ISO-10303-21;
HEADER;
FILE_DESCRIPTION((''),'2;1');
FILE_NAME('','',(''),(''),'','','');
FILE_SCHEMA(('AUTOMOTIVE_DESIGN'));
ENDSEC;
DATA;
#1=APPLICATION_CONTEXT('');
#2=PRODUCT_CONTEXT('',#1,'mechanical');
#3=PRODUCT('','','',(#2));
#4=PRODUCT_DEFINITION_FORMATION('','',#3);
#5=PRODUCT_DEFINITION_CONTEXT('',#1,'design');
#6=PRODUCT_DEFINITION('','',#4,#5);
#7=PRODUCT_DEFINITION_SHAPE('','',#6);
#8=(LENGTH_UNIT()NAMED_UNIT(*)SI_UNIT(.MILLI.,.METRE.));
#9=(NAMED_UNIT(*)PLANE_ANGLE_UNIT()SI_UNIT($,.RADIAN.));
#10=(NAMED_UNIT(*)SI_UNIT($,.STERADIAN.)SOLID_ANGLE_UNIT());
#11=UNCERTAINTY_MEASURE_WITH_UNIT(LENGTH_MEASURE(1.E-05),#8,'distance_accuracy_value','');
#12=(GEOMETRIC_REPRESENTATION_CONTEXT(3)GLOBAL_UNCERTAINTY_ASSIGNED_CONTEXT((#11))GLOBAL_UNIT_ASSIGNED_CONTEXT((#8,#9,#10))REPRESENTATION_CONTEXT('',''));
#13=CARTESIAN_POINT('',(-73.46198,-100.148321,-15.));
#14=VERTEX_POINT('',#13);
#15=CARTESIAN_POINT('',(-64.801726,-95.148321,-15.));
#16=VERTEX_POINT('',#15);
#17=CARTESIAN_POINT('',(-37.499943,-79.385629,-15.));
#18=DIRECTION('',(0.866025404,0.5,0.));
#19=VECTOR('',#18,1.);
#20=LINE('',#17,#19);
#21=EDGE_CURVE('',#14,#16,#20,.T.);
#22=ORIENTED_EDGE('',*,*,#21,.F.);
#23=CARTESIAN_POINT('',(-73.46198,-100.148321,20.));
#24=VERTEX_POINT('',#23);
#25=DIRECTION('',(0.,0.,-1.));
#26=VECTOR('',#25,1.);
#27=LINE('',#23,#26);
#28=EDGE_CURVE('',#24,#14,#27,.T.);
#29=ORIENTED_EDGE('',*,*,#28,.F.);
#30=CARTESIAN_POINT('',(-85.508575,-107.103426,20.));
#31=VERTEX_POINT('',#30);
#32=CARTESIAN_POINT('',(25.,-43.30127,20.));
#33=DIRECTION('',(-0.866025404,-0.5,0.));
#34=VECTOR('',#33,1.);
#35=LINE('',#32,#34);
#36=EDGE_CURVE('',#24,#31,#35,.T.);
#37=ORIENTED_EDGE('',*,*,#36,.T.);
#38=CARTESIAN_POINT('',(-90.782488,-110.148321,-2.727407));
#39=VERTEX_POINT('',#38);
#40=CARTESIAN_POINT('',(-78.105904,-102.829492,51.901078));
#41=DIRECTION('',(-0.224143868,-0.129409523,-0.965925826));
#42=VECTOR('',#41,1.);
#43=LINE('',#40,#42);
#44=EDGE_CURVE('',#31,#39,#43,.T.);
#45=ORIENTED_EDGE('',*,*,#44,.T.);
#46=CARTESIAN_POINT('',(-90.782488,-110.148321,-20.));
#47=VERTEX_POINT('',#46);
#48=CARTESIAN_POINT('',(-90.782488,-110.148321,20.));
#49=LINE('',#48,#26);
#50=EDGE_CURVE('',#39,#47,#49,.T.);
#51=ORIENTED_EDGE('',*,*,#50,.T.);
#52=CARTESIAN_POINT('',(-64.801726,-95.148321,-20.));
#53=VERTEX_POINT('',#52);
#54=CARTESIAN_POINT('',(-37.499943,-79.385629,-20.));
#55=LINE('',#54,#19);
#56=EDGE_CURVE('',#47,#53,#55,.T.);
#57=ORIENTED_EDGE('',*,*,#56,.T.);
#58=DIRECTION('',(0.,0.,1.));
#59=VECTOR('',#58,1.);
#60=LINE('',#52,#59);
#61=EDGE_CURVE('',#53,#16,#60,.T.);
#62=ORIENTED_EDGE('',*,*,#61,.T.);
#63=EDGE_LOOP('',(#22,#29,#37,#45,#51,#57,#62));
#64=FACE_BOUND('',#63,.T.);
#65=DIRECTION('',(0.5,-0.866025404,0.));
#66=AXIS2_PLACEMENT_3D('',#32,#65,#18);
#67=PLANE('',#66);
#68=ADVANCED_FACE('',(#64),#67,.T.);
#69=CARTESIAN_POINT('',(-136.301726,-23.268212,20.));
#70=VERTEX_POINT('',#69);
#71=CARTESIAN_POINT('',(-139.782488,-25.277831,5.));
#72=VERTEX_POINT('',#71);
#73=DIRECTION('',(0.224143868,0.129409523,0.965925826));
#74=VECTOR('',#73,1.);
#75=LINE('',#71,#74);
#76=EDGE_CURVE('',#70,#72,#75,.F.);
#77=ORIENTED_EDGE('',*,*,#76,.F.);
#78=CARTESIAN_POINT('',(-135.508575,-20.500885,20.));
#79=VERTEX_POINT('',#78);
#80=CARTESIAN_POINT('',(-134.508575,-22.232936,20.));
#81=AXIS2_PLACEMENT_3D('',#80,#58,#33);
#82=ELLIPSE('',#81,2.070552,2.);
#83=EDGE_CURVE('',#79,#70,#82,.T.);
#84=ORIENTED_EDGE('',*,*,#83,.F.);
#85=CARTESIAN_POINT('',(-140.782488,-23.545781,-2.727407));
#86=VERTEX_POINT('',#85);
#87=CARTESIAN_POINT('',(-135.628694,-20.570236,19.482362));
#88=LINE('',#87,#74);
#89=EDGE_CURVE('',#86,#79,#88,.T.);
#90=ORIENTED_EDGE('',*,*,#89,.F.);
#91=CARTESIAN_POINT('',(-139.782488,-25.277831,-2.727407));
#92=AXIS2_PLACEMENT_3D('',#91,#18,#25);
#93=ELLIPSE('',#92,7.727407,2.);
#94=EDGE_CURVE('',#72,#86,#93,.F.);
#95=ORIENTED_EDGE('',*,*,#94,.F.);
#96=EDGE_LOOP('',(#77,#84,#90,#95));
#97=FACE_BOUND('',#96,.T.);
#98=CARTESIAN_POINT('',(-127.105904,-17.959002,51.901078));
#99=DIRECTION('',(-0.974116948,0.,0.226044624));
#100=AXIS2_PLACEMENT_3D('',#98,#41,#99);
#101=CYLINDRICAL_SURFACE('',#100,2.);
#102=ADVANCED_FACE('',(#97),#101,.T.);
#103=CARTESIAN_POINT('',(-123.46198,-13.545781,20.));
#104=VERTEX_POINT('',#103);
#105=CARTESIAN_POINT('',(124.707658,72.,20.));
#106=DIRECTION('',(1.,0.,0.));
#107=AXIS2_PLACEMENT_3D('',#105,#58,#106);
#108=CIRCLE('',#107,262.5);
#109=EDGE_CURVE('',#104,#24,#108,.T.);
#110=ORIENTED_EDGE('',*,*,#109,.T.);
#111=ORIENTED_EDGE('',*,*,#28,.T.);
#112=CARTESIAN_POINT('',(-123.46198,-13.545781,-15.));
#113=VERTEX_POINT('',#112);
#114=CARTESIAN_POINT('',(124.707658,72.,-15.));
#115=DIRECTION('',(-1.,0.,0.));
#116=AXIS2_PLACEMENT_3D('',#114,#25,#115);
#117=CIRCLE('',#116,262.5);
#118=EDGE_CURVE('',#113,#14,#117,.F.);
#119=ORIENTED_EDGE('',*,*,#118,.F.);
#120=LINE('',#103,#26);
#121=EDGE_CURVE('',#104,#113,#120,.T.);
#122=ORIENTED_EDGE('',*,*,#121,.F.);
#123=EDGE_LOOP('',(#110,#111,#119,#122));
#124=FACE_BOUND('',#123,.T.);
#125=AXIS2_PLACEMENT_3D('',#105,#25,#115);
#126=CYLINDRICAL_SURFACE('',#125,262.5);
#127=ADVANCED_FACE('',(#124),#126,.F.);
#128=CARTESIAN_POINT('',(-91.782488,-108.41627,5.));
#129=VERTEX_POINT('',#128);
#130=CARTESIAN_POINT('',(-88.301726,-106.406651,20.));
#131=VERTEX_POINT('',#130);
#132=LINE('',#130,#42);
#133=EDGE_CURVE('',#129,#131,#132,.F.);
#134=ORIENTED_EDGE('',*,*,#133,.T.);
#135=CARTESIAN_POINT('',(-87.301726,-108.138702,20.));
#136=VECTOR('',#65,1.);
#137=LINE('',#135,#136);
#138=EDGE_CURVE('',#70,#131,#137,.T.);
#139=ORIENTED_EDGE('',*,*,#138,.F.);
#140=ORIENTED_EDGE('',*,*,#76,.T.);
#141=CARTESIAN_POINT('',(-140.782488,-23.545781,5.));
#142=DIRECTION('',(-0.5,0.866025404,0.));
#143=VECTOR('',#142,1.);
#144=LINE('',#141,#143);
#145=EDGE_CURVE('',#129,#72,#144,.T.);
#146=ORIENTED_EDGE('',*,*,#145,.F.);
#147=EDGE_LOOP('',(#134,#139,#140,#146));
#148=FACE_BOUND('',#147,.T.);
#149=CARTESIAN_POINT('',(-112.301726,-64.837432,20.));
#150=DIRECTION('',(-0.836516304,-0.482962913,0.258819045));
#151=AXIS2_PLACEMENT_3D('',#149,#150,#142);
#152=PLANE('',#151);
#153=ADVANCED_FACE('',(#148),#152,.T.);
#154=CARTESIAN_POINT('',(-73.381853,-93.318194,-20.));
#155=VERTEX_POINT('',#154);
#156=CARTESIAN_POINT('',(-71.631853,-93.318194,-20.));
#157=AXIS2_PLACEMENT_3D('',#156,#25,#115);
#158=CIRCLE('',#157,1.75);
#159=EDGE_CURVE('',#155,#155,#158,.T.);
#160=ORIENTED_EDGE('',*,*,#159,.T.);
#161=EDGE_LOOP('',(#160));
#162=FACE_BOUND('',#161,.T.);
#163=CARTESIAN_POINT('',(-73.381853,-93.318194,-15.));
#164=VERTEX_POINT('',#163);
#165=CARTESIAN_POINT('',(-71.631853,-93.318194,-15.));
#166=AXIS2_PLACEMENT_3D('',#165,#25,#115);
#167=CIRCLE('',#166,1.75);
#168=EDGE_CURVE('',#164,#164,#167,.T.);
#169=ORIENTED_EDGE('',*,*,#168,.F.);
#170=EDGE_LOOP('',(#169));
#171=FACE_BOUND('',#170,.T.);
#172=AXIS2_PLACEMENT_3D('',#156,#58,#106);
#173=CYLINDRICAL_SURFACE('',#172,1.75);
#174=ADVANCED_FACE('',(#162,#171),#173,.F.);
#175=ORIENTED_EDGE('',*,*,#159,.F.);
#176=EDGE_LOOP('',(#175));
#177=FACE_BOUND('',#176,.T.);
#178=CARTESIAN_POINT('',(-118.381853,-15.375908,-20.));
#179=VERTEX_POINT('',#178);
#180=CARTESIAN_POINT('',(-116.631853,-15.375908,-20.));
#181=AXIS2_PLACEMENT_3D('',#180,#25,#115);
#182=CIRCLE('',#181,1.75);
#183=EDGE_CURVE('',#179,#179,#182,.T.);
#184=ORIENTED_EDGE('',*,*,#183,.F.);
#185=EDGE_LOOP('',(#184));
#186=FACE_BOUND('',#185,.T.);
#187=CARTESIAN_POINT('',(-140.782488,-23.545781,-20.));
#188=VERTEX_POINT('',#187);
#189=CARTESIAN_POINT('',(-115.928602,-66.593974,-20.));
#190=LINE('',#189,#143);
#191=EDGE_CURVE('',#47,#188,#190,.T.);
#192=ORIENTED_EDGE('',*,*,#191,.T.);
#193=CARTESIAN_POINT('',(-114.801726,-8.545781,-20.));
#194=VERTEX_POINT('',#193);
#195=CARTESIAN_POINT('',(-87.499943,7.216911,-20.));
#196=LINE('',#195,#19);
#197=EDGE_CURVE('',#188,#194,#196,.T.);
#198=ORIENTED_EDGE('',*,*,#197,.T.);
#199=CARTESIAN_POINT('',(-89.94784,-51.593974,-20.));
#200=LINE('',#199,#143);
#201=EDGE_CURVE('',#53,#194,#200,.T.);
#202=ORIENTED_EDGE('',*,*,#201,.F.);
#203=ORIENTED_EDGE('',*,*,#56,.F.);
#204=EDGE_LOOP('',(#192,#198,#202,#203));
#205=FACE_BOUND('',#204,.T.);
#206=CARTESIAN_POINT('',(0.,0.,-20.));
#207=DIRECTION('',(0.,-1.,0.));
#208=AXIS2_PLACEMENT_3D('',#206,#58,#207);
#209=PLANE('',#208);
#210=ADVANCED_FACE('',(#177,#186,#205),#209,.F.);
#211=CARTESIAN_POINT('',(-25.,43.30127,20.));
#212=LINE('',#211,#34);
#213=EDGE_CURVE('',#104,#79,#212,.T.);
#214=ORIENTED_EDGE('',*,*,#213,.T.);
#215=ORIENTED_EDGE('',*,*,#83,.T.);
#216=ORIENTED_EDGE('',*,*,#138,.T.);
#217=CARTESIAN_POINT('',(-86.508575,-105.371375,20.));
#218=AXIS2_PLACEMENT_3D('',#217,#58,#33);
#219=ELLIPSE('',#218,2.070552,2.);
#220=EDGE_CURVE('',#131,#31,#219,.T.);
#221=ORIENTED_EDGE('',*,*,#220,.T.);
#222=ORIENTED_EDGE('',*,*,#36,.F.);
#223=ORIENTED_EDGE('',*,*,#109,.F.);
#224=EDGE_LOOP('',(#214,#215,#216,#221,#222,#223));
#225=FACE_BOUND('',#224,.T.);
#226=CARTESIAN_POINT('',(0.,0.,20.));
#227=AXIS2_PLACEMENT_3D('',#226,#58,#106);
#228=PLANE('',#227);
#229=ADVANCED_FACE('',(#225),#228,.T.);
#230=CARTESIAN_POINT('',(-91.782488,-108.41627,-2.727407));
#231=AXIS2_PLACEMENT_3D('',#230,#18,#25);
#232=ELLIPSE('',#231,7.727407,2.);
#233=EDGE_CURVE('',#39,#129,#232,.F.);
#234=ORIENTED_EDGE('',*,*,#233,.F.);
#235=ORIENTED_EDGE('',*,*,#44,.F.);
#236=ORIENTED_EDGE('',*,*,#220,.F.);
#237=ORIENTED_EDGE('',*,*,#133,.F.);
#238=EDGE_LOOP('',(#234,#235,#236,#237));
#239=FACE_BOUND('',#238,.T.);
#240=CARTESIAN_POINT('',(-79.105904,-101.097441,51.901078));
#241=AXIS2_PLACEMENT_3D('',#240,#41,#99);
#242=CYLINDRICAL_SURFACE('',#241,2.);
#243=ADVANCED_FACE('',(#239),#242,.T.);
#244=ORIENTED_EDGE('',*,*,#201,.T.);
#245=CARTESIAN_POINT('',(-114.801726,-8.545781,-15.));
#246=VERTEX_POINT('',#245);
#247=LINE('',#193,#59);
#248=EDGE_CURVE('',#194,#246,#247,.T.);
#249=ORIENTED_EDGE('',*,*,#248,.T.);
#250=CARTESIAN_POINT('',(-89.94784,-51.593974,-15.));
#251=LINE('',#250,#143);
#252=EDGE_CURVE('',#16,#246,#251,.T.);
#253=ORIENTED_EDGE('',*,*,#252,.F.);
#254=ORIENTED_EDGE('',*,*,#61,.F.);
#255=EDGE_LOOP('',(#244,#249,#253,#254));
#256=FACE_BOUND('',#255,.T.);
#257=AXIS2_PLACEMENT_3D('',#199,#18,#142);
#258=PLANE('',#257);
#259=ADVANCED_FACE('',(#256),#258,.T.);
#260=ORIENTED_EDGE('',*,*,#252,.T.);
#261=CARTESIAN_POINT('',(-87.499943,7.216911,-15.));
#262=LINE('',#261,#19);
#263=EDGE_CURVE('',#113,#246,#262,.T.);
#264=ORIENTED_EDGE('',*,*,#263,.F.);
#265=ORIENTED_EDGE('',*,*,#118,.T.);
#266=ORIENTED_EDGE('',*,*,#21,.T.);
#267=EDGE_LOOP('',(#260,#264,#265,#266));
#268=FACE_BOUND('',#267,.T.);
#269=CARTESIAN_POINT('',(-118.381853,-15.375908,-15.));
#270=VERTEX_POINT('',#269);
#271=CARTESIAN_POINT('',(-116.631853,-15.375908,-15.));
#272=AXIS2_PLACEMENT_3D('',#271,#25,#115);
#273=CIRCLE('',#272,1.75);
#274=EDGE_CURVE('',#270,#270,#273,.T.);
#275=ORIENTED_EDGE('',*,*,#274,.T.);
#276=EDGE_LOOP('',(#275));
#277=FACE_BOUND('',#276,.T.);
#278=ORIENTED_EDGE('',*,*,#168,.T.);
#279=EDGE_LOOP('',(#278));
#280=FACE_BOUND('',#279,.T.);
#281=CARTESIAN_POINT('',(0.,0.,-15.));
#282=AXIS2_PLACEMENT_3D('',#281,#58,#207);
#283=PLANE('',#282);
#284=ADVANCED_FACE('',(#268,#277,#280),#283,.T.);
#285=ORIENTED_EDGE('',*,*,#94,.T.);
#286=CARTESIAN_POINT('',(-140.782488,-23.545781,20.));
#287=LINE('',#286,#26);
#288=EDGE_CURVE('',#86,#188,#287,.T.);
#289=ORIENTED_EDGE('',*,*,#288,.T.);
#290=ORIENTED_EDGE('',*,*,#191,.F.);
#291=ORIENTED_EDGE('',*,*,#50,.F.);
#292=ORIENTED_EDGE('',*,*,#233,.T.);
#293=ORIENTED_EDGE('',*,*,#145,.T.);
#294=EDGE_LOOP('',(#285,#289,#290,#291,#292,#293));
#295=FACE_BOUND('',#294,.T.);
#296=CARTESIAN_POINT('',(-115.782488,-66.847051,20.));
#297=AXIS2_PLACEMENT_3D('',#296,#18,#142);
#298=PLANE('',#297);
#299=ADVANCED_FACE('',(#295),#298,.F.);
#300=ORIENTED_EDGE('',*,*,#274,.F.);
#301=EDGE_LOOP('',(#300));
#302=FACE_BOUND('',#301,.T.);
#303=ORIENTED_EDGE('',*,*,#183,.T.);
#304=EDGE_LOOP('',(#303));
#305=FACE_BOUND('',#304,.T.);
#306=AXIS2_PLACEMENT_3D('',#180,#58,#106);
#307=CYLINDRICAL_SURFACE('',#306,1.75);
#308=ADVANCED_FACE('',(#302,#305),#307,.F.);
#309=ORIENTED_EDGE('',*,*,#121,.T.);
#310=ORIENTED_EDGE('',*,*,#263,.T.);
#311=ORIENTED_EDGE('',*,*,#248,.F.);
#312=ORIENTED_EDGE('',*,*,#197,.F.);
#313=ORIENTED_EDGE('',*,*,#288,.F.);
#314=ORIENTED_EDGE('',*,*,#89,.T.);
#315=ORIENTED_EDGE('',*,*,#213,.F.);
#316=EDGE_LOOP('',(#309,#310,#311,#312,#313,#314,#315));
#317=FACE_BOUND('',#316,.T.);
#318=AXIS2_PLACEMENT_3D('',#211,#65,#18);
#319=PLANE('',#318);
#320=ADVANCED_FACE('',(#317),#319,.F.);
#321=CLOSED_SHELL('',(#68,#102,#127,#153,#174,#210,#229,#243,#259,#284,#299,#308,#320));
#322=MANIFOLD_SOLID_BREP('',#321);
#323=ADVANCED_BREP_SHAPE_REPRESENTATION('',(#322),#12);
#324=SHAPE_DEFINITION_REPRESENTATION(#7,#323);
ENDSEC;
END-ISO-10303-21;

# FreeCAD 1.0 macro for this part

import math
import FreeCAD as App
import Part
import Sketcher
from FreeCAD import Vector
Q = App.Units.Quantity


def edges_at(feature, points):
    """Names of the edges that pass closest to the given points."""
    edges = feature.Shape.Edges
    near = lambda p: min(range(len(edges)), key=lambda i: edges[i].distToShape(Part.Vertex(*p))[0])
    return sorted({f"Edge{near(p) + 1}" for p in points})

doc = App.newDocument("Part")
params = doc.addObject("Spreadsheet::Sheet", "Params")
for row, (alias, value) in enumerate([
    ("sketch1_radius", "262.5 mm"),
    ("sketch1_length", "20 mm"),
    ("sketch1_length2", "100 mm"),
    ("pad1_length", "20 mm"),
    ("pad1_length2", "15 mm"),
    ("sketch2_diameter", "3.5 mm"),
    ("sketch2_length", "100 mm"),
    ("sketch2_length2", "30 mm"),
    ("pad2_length", "5 mm"),
    ("chamfer_size", "15 mm"),
    ("chamfer_size2", "4.019238 mm"),
    ("fillet_radius", "2 mm"),
], start=1):
    params.set(f"A{row}", alias)
    params.set(f"B{row}", "=" + value)
    params.setAlias(f"B{row}", alias)

body = doc.addObject("PartDesign::Body", "Body")

# Sketch on XY plane
sketch1 = body.newObject("Sketcher::SketchObject", "Sketch")
sketch1.AttachmentSupport = (doc.getObject("XY_Plane"), [""])
sketch1.MapMode = "FlatFace"
sketch1.addGeometry(Part.ArcOfCircle(Part.Circle(Vector(124.707658, 72, 0), Vector(0, 0, 1), 262.5), math.radians(-160.980575), math.radians(-139.019425)), False)
sketch1.addGeometry(Part.LineSegment(Vector(-123.46198, -13.545781, 0), Vector(-140.782488, -23.545781, 0)), False)
sketch1.addGeometry(Part.LineSegment(Vector(-140.782488, -23.545781, 0), Vector(-90.782488, -110.148321, 0)), False)
sketch1.addGeometry(Part.LineSegment(Vector(-90.782488, -110.148321, 0), Vector(-73.46198, -100.148321, 0)), False)
sketch1.addConstraint(Sketcher.Constraint("Coincident", 0, 1, 1, 1))
sketch1.addConstraint(Sketcher.Constraint("Coincident", 1, 2, 2, 1))
sketch1.addConstraint(Sketcher.Constraint("Coincident", 2, 2, 3, 1))
sketch1.addConstraint(Sketcher.Constraint("Coincident", 3, 2, 0, 2))
sketch1.addConstraint(Sketcher.Constraint("Perpendicular", 1, 2))
sketch1.addConstraint(Sketcher.Constraint("Perpendicular", 2, 3))
sketch1.addConstraint(Sketcher.Constraint("Equal", 1, 3))
sketch1.addConstraint(Sketcher.Constraint("Radius", 0, Q("262.5 mm")))
sketch1.addConstraint(Sketcher.Constraint("Angle", 1, Q("-150 deg")))
sketch1.addConstraint(Sketcher.Constraint("Distance", 1, Q("20 mm")))
sketch1.addConstraint(Sketcher.Constraint("Distance", 2, Q("100 mm")))
sketch1.addConstraint(Sketcher.Constraint("DistanceY", -1, 1, 0, 3, Q("72 mm")))
sketch1.addConstraint(Sketcher.Constraint("DistanceX", -1, 1, 0, 3, Q("124.707658 mm")))
sketch1.setExpression("Constraints[7]", "Params.sketch1_radius")
sketch1.setExpression("Constraints[9]", "Params.sketch1_length")
sketch1.setExpression("Constraints[10]", "Params.sketch1_length2")
pad1 = body.newObject("PartDesign::Pad", "Pad")
pad1.Profile = sketch1
pad1.Type = "TwoLengths"
pad1.setExpression("Length", "Params.pad1_length")
pad1.setExpression("Length2", "Params.pad1_length2")

# Sketch on XY plane
sketch2 = body.newObject("Sketcher::SketchObject", "Sketch001")
sketch2.AttachmentSupport = (doc.getObject("XY_Plane"), [""])
sketch2.MapMode = "FlatFace"
sketch2.AttachmentOffset = App.Placement(Vector(0, 0, -20), App.Rotation())
sketch2.addGeometry(Part.LineSegment(Vector(-140.782488, -23.545781, 0), Vector(-90.782488, -110.148321, 0)), False)
sketch2.addGeometry(Part.LineSegment(Vector(-90.782488, -110.148321, 0), Vector(-64.801726, -95.148321, 0)), False)
sketch2.addGeometry(Part.LineSegment(Vector(-64.801726, -95.148321, 0), Vector(-114.801726, -8.545781, 0)), False)
sketch2.addGeometry(Part.LineSegment(Vector(-114.801726, -8.545781, 0), Vector(-140.782488, -23.545781, 0)), False)
sketch2.addGeometry(Part.Circle(Vector(-116.631853, -15.375908, 0), Vector(0, 0, 1), 1.75), False)
sketch2.addGeometry(Part.Circle(Vector(-71.631853, -93.318194, 0), Vector(0, 0, 1), 1.75), False)
sketch2.addConstraint(Sketcher.Constraint("Coincident", 0, 2, 1, 1))
sketch2.addConstraint(Sketcher.Constraint("Coincident", 1, 2, 2, 1))
sketch2.addConstraint(Sketcher.Constraint("Coincident", 2, 2, 3, 1))
sketch2.addConstraint(Sketcher.Constraint("Coincident", 3, 2, 0, 1))
sketch2.addConstraint(Sketcher.Constraint("Equal", 4, 5))
sketch2.addConstraint(Sketcher.Constraint("Perpendicular", 0, 1))
sketch2.addConstraint(Sketcher.Constraint("Perpendicular", 1, 2))
sketch2.addConstraint(Sketcher.Constraint("Perpendicular", 2, 3))
sketch2.addConstraint(Sketcher.Constraint("Diameter", 4, Q("3.5 mm")))
sketch2.addConstraint(Sketcher.Constraint("Angle", 0, Q("-60 deg")))
sketch2.addConstraint(Sketcher.Constraint("Distance", 0, Q("100 mm")))
sketch2.addConstraint(Sketcher.Constraint("Distance", 1, Q("30 mm")))
sketch2.addConstraint(Sketcher.Constraint("DistanceX", 4, 3, 5, 3, Q("45 mm")))
sketch2.addConstraint(Sketcher.Constraint("DistanceX", 0, 2, -1, 1, Q("90.782488 mm")))
sketch2.addConstraint(Sketcher.Constraint("DistanceY", 0, 2, -1, 1, Q("110.148321 mm")))
sketch2.addConstraint(Sketcher.Constraint("DistanceX", 4, 3, -1, 1, Q("116.631853 mm")))
sketch2.addConstraint(Sketcher.Constraint("DistanceY", 4, 3, -1, 1, Q("15.375908 mm")))
sketch2.addConstraint(Sketcher.Constraint("DistanceY", 5, 3, -1, 1, Q("93.318194 mm")))
sketch2.setExpression("Constraints[8]", "Params.sketch2_diameter")
sketch2.setExpression("Constraints[10]", "Params.sketch2_length")
sketch2.setExpression("Constraints[11]", "Params.sketch2_length2")
pad2 = body.newObject("PartDesign::Pad", "Pad001")
pad2.Profile = sketch2
pad2.setExpression("Length", "Params.pad2_length")
doc.recompute()

chamfer = body.newObject("PartDesign::Chamfer", "Chamfer")
chamfer.Base = (pad2, edges_at(pad2, [(-115.782, -66.847, 20)]))
chamfer.ChamferType = "Two distances"
chamfer.setExpression("Size", "Params.chamfer_size")
chamfer.setExpression("Size2", "Params.chamfer_size2")
chamfer.FlipDirection = True
doc.recompute()

fillet = body.newObject("PartDesign::Fillet", "Fillet")
fillet.Base = (chamfer, edges_at(chamfer, [(-89.042, -109.144, 12.5), (-139.042, -22.541, 12.5)]))
fillet.setExpression("Radius", "Params.fillet_radius")

doc.recompute()
